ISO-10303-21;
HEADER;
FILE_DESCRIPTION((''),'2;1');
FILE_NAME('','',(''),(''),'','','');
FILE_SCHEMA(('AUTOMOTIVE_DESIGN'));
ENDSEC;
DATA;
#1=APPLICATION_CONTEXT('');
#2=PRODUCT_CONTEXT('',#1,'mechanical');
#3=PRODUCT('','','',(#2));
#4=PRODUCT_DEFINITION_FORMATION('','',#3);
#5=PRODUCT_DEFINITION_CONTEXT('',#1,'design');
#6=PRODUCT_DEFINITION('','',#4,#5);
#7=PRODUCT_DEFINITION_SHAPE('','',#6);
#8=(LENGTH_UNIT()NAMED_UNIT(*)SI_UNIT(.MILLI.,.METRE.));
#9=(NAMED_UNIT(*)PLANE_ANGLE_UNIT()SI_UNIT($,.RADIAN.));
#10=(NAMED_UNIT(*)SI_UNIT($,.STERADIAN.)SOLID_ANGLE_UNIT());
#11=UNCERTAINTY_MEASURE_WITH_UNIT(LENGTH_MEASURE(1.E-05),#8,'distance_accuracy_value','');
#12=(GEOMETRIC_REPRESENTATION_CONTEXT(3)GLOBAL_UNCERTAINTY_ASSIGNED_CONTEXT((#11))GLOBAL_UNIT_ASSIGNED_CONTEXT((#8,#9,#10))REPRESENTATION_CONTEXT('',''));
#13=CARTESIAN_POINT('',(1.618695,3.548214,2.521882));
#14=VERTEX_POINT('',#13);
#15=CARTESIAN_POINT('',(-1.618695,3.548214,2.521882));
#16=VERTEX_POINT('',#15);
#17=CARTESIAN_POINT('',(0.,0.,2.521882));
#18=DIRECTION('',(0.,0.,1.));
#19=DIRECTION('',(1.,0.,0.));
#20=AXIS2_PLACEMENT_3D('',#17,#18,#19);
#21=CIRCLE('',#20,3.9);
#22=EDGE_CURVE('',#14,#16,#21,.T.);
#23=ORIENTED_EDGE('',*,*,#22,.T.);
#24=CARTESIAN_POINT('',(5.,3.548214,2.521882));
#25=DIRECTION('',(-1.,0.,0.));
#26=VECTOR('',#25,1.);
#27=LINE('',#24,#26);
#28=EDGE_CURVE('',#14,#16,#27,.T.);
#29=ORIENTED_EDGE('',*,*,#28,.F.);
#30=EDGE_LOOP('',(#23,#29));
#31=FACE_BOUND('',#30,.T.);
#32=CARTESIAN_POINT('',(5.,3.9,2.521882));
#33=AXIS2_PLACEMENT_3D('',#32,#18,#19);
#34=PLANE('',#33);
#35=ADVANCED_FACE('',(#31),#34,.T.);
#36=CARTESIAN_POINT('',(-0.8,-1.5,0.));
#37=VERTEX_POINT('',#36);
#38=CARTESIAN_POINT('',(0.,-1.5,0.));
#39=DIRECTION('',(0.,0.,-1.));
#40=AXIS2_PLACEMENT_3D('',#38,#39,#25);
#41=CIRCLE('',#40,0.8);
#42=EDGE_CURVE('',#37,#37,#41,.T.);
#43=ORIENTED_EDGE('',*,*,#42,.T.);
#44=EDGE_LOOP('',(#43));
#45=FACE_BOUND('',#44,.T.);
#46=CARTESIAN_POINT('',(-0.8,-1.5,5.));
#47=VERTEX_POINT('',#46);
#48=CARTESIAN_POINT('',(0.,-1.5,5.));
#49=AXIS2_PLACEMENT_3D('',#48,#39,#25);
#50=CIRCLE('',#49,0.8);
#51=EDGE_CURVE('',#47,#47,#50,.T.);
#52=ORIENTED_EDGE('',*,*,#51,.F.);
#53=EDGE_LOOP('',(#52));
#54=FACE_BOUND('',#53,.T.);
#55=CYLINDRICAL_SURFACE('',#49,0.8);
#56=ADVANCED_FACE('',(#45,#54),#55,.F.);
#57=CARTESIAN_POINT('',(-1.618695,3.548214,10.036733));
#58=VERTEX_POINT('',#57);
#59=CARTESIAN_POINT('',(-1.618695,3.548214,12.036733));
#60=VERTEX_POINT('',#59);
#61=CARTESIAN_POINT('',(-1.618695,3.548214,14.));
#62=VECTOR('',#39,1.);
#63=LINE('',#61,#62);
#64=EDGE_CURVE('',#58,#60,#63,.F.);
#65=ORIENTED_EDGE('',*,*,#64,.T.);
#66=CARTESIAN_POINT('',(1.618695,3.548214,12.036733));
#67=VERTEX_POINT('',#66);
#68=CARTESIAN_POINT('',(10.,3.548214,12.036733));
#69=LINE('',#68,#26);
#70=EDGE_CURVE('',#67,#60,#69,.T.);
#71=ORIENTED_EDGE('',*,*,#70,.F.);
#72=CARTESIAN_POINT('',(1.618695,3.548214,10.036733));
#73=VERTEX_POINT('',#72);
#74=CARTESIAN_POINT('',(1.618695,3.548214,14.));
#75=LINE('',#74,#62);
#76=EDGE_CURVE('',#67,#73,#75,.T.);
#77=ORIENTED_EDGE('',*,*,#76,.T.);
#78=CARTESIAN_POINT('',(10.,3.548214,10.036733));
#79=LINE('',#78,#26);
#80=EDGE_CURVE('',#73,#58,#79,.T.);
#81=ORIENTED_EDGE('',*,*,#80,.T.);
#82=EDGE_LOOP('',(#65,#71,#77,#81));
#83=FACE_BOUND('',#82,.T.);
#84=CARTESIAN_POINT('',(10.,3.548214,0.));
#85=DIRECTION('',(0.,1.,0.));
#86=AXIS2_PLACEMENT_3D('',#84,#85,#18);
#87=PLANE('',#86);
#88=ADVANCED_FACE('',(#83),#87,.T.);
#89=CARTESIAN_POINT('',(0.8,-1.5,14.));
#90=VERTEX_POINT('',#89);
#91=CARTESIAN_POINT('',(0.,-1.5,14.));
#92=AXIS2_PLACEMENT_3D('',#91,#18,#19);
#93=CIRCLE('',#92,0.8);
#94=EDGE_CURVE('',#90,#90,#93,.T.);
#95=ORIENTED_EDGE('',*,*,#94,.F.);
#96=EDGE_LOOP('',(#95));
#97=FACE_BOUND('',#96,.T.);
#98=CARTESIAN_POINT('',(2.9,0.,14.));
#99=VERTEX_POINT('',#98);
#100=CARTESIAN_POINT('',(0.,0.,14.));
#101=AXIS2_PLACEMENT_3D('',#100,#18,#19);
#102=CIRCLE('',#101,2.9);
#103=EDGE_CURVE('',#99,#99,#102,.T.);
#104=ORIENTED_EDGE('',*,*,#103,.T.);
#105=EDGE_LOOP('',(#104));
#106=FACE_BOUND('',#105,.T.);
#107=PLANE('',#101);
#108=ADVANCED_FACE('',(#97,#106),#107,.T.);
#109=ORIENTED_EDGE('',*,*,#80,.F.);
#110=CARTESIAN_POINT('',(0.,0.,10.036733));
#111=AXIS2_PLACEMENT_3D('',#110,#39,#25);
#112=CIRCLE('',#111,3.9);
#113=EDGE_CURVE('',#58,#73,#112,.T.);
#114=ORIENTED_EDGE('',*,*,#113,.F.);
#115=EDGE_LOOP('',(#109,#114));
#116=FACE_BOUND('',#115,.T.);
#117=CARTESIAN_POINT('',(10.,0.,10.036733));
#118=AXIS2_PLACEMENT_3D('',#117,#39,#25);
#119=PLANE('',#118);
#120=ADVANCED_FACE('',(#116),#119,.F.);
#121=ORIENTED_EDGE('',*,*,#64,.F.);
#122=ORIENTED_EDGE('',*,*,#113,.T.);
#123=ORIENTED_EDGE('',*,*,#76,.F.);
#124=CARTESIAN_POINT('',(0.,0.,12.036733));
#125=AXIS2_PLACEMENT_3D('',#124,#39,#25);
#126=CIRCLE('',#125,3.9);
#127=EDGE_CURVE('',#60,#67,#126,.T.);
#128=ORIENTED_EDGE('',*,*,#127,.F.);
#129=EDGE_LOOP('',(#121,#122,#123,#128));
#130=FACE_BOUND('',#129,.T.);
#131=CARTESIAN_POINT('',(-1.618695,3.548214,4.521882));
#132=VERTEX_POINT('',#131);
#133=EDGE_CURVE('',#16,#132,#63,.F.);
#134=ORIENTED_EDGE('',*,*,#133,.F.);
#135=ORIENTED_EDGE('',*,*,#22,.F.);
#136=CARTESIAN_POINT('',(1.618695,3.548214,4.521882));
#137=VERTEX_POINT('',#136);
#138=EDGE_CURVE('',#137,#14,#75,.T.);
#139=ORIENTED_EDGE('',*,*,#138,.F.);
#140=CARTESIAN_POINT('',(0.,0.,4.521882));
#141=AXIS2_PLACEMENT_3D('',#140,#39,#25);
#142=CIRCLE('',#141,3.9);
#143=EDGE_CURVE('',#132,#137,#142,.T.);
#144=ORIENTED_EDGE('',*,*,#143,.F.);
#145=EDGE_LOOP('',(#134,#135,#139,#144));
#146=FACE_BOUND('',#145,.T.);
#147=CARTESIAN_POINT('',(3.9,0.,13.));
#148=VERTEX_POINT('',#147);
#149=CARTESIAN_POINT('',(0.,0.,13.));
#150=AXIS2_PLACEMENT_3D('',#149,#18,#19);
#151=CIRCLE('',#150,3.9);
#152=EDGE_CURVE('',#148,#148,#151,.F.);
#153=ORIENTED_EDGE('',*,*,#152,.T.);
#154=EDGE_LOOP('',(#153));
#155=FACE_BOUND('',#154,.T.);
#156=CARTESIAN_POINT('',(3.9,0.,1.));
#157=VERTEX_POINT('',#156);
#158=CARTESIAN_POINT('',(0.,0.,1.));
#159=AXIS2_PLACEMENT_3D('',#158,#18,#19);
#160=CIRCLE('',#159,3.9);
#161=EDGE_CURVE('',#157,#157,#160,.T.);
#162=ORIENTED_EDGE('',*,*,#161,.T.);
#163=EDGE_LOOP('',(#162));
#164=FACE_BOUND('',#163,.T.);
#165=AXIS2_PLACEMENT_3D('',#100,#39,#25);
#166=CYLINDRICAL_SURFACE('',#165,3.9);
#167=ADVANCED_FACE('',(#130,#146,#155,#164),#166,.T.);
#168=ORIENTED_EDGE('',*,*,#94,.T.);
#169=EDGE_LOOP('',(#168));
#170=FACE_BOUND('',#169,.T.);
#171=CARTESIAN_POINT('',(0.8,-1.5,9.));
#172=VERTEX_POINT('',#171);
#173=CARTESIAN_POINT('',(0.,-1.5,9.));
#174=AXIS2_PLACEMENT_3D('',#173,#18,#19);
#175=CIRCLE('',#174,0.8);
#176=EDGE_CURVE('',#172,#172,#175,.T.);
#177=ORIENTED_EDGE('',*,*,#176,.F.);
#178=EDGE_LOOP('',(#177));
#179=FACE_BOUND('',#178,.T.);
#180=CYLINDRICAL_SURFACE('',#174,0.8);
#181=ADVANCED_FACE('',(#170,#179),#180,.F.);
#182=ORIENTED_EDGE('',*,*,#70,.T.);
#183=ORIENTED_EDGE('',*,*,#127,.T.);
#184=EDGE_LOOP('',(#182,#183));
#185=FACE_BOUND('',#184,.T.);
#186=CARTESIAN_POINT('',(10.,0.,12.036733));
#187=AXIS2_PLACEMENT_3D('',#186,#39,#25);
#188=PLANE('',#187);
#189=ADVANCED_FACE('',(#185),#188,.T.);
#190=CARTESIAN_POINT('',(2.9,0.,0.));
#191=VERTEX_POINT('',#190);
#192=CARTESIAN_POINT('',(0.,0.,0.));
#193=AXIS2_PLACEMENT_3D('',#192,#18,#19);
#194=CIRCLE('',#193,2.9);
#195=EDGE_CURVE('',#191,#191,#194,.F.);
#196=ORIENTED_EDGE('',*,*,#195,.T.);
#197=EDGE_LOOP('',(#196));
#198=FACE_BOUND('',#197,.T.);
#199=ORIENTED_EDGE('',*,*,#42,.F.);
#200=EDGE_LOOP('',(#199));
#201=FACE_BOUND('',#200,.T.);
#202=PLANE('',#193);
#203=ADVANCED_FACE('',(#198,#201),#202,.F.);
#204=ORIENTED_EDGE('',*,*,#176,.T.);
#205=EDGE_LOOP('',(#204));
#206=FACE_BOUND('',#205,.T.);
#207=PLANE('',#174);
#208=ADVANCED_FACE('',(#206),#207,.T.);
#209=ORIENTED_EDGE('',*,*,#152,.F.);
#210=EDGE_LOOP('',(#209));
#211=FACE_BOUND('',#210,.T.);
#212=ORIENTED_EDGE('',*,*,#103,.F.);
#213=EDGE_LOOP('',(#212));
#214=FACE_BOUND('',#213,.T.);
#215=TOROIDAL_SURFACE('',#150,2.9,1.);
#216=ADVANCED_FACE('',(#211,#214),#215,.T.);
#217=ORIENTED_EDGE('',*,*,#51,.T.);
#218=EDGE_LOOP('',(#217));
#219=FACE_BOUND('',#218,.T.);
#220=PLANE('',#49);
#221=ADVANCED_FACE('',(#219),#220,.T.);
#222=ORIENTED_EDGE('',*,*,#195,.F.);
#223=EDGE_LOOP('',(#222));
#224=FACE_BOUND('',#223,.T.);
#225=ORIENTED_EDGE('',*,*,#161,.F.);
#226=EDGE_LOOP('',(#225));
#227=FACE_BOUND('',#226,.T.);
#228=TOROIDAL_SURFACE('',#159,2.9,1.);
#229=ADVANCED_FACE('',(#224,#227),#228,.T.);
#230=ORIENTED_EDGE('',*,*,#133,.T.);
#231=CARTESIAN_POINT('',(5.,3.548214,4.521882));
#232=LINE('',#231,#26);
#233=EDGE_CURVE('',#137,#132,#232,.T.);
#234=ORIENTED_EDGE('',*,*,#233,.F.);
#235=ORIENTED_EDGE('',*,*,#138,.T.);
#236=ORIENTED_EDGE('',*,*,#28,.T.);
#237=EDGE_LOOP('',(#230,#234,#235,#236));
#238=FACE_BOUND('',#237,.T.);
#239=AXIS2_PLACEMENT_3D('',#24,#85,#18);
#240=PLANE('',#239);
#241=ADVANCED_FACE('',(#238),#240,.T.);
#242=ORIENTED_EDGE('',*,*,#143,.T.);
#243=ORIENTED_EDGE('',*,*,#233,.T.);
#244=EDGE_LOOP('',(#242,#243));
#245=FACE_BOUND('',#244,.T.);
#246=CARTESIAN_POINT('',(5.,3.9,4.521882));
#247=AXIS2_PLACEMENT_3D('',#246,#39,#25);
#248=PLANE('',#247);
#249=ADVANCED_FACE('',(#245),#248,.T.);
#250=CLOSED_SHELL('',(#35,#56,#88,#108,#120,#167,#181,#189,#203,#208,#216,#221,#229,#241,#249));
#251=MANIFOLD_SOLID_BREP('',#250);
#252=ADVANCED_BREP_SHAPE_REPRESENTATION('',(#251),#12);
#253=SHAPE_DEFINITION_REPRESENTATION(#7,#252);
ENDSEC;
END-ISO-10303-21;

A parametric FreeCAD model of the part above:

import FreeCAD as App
import Part
import Sketcher
Q = App.Units.Quantity


def edges_at(feature, points):
    """Names of the edges that pass closest to the given points."""
    edges = feature.Shape.Edges
    near = lambda p: min(range(len(edges)), key=lambda i: edges[i].distToShape(Part.Vertex(*p))[0])
    return sorted({f"Edge{near(p) + 1}" for p in points})


def add_polygon(sketch, points):
    """Adds a closed chain of lines whose ends are joined by coincident constraints."""
    first, n = sketch.GeometryCount, len(points)
    for a, b in zip(points, points[1:] + points[:1]):
        sketch.addGeometry(Part.LineSegment(App.Vector(*a, 0), App.Vector(*b, 0)), False)
    for i in range(n):
        sketch.addConstraint(Sketcher.Constraint("Coincident", first + i, 2, first + (i + 1) % n, 1))

doc = App.newDocument("Part")
body = doc.addObject("PartDesign::Body", "Body")

sketch1 = body.newObject("Sketcher::SketchObject", "Sketch")
sketch1.AttachmentSupport = (doc.getObject("XY_Plane"), [""])
sketch1.MapMode = "FlatFace"
sketch1.addGeometry(Part.Circle(App.Vector(0, 0, 0), App.Vector(0, 0, 1), 3.9), False)
sketch1.addConstraint(Sketcher.Constraint("Coincident", 0, 3, -1, 1))
sketch1.addConstraint(Sketcher.Constraint("Diameter", 0, Q("7.8 mm")))
pad1 = body.newObject("PartDesign::Pad", "Pad")
pad1.Profile = sketch1
pad1.Length = 14
doc.recompute()

fillet = body.newObject("PartDesign::Fillet", "Fillet")
fillet.Base = (pad1, edges_at(pad1, [(-3.9, 0, 0), (-3.9, 0, 14)]))
fillet.Radius = 1

sketch2 = body.newObject("Sketcher::SketchObject", "Sketch001")
sketch2.AttachmentSupport = (doc.getObject("XY_Plane"), [""])
sketch2.MapMode = "FlatFace"
sketch2.AttachmentOffset = App.Placement(App.Vector(0, 0, 14), App.Rotation())
sketch2.addGeometry(Part.Circle(App.Vector(0, -1.5, 0), App.Vector(0, 0, 1), 0.8), False)
sketch2.addConstraint(Sketcher.Constraint("PointOnObject", 0, 3, -2))
sketch2.addConstraint(Sketcher.Constraint("Diameter", 0, Q("1.6 mm")))
sketch2.addConstraint(Sketcher.Constraint("DistanceY", 0, 3, -1, 1, Q("1.5 mm")))
pocket1 = body.newObject("PartDesign::Pocket", "Pocket")
pocket1.Profile = sketch2
pocket1.Length = 5

sketch3 = body.newObject("Sketcher::SketchObject", "Sketch002")
sketch3.AttachmentSupport = (doc.getObject("XY_Plane"), [""])
sketch3.MapMode = "FlatFace"
sketch3.addGeometry(Part.Circle(App.Vector(0, -1.5, 0), App.Vector(0, 0, 1), 0.8), False)
sketch3.addConstraint(Sketcher.Constraint("PointOnObject", 0, 3, -2))
sketch3.addConstraint(Sketcher.Constraint("Diameter", 0, Q("1.6 mm")))
sketch3.addConstraint(Sketcher.Constraint("DistanceY", 0, 3, -1, 1, Q("1.5 mm")))
pocket2 = body.newObject("PartDesign::Pocket", "Pocket001")
pocket2.Profile = sketch3
pocket2.Length = 5
pocket2.Reversed = True

sketch4 = body.newObject("Sketcher::SketchObject", "Sketch003")
sketch4.AttachmentSupport = (doc.getObject("YZ_Plane"), [""])
sketch4.MapMode = "FlatFace"
add_polygon(sketch4, [(3.9, 4.521882), (3.548214, 4.521882), (3.548214, 2.521882), (3.9, 2.521882)])
sketch4.addConstraint(Sketcher.Constraint("Horizontal", 0))
sketch4.addConstraint(Sketcher.Constraint("Vertical", 1))
sketch4.addConstraint(Sketcher.Constraint("Horizontal", 2))
sketch4.addConstraint(Sketcher.Constraint("Vertical", 3))
sketch4.addConstraint(Sketcher.Constraint("DistanceY", 1, 2, 1, 1, Q("2 mm")))
sketch4.addConstraint(Sketcher.Constraint("DistanceX", -1, 1, 2, 2, Q("3.9 mm")))
sketch4.addConstraint(Sketcher.Constraint("DistanceX", 0, 2, 0, 1, Q("0.351786 mm")))
sketch4.addConstraint(Sketcher.Constraint("DistanceY", -1, 1, 0, 2, Q("4.521882 mm")))
pocket3 = body.newObject("PartDesign::Pocket", "Pocket002")
pocket3.Profile = sketch4
pocket3.Type = "ThroughAll"
pocket3.Midplane = True

sketch5 = body.newObject("Sketcher::SketchObject", "Sketch004")
sketch5.AttachmentSupport = (doc.getObject("YZ_Plane"), [""])
sketch5.MapMode = "FlatFace"
add_polygon(sketch5, [(4.949469, 12.036733), (3.548214, 12.036733), (3.548214, 10.036733), (4.949469, 10.036733)])
sketch5.addConstraint(Sketcher.Constraint("Horizontal", 0))
sketch5.addConstraint(Sketcher.Constraint("Vertical", 1))
sketch5.addConstraint(Sketcher.Constraint("Horizontal", 2))
sketch5.addConstraint(Sketcher.Constraint("Vertical", 3))
sketch5.addConstraint(Sketcher.Constraint("DistanceY", 1, 2, 1, 1, Q("2 mm")))
sketch5.addConstraint(Sketcher.Constraint("DistanceX", 0, 2, 0, 1, Q("1.401255 mm")))
sketch5.addConstraint(Sketcher.Constraint("DistanceX", -1, 1, 2, 2, Q("4.949469 mm")))
sketch5.addConstraint(Sketcher.Constraint("DistanceY", -1, 1, 0, 2, Q("12.036733 mm")))
pocket4 = body.newObject("PartDesign::Pocket", "Pocket003")
pocket4.Profile = sketch5
pocket4.Type = "ThroughAll"
pocket4.Midplane = True

doc.recompute()
